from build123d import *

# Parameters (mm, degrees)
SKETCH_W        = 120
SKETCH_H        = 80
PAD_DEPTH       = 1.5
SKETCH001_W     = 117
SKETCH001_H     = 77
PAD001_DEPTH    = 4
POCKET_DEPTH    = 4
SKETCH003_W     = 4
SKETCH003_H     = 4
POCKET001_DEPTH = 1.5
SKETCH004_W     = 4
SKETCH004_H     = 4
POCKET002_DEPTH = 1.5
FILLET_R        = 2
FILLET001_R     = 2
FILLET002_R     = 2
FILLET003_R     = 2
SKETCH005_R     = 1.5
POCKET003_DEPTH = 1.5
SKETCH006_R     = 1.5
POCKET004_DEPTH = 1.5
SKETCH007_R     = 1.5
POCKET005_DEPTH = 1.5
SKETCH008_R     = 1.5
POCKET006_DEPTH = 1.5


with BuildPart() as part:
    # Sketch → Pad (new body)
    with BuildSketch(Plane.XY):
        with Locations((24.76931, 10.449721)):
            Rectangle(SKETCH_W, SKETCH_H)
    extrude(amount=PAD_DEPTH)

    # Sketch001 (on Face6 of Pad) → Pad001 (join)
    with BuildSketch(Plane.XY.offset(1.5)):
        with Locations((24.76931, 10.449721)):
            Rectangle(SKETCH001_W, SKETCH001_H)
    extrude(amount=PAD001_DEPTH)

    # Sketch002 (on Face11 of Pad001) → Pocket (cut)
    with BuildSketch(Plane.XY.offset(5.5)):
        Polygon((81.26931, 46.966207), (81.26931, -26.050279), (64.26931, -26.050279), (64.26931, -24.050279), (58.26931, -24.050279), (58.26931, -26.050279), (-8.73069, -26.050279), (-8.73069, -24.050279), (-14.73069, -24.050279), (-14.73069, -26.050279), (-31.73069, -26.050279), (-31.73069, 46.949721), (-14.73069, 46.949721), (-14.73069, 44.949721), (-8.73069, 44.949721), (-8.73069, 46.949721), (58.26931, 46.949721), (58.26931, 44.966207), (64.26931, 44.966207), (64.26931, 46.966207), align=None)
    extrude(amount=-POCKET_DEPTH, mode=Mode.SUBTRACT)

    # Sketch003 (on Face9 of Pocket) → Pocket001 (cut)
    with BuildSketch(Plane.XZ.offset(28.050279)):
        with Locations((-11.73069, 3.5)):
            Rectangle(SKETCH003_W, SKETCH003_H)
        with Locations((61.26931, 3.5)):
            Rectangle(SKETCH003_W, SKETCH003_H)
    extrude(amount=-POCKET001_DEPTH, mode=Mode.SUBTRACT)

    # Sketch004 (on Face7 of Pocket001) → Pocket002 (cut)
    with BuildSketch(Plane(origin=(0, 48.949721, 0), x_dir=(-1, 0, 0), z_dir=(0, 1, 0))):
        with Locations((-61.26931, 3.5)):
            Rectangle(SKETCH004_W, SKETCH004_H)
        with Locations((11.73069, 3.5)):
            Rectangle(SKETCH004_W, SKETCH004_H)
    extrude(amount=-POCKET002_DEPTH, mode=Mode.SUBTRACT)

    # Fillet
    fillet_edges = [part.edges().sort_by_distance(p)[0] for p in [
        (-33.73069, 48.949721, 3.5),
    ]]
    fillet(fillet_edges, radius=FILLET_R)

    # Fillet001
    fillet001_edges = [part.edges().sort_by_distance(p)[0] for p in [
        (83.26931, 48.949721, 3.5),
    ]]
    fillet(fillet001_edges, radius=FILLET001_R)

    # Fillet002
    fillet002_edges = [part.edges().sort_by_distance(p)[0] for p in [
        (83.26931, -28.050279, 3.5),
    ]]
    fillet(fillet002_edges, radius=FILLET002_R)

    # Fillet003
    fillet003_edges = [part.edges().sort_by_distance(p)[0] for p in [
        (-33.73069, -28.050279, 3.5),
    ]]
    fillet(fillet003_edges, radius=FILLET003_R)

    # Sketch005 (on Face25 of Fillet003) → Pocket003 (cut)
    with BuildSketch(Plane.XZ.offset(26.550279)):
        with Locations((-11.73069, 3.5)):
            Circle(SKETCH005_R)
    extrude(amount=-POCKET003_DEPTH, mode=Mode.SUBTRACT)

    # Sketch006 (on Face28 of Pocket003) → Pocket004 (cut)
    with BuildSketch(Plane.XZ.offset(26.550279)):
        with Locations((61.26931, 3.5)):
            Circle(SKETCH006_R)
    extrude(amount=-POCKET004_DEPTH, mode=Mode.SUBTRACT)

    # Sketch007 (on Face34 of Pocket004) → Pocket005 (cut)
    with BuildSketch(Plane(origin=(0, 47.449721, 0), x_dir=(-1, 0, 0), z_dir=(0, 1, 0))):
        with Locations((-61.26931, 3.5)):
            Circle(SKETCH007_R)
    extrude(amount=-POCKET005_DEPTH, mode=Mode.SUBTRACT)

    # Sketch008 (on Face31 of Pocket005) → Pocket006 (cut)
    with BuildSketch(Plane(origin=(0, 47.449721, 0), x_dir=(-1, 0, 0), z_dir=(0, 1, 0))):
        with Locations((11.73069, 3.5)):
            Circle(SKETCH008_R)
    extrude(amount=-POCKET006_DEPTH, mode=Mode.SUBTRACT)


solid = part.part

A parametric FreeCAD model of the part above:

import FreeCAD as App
import Part
import Sketcher
Q = App.Units.Quantity


def edges_at(feature, points):
    """Names of the edges that pass closest to the given points."""
    edges = feature.Shape.Edges
    near = lambda p: min(range(len(edges)), key=lambda i: edges[i].distToShape(Part.Vertex(*p))[0])
    return sorted({f"Edge{near(p) + 1}" for p in points})


def add_polygon(sketch, points):
    """Adds a closed chain of lines whose ends are joined by coincident constraints."""
    first, n = sketch.GeometryCount, len(points)
    for a, b in zip(points, points[1:] + points[:1]):
        sketch.addGeometry(Part.LineSegment(App.Vector(*a, 0), App.Vector(*b, 0)), False)
    for i in range(n):
        sketch.addConstraint(Sketcher.Constraint("Coincident", first + i, 2, first + (i + 1) % n, 1))

doc = App.newDocument("Part")
body = doc.addObject("PartDesign::Body", "Body")

# Sketch on XY plane
sketch1 = doc.addObject("Sketcher::SketchObject", "Sketch")
body.addObject(sketch1)
sketch1.AttachmentSupport = (doc.XY_Plane, [""])
sketch1.MapMode = "FlatFace"
add_polygon(sketch1, [(-35, 50), (-35, -30), (85, -30), (85, 50)])  # lines 0-3
sketch1.addConstraint([
    Sketcher.Constraint("Vertical", 0),
    Sketcher.Constraint("Horizontal", 1),
    Sketcher.Constraint("Vertical", 2),
    Sketcher.Constraint("Horizontal", 3),
    Sketcher.Constraint("DistanceX", 1, 1, 1, 2, Q("120 mm")),
    Sketcher.Constraint("DistanceY", 0, 2, 0, 1, Q("80 mm")),
    Sketcher.Constraint("DistanceX", 0, 2, -1, 1, Q("35.23069 mm")),
    Sketcher.Constraint("DistanceY", 0, 2, -1, 1, Q("29.550279 mm")),
])
pad1 = doc.addObject("PartDesign::Pad", "Pad")
body.addObject(pad1)
pad1.Profile = sketch1
pad1.Length = 1.5

# Sketch on XY plane
sketch2 = doc.addObject("Sketcher::SketchObject", "Sketch001")
body.addObject(sketch2)
sketch2.AttachmentSupport = (doc.XY_Plane, [""])
sketch2.MapMode = "FlatFace"
sketch2.AttachmentOffset = App.Placement(App.Vector(0, 0, 1.5), App.Rotation())
add_polygon(sketch2, [(-34, 49), (-34, -28), (83, -28), (83, 49)])  # lines 0-3
sketch2.addConstraint([
    Sketcher.Constraint("Vertical", 0),
    Sketcher.Constraint("Horizontal", 1),
    Sketcher.Constraint("Vertical", 2),
    Sketcher.Constraint("Horizontal", 3),
    Sketcher.Constraint("DistanceX", 1, 1, 1, 2, Q("117 mm")),
    Sketcher.Constraint("DistanceY", 0, 2, 0, 1, Q("77 mm")),
    Sketcher.Constraint("DistanceX", 0, 2, -1, 1, Q("33.73069 mm")),
    Sketcher.Constraint("DistanceY", 0, 2, -1, 1, Q("28.050279 mm")),
])
pad2 = doc.addObject("PartDesign::Pad", "Pad001")
body.addObject(pad2)
pad2.Profile = sketch2
pad2.Length = 4

# Sketch on XY plane
sketch3 = doc.addObject("Sketcher::SketchObject", "Sketch002")
body.addObject(sketch3)
sketch3.AttachmentSupport = (doc.XY_Plane, [""])
sketch3.MapMode = "FlatFace"
sketch3.AttachmentOffset = App.Placement(App.Vector(0, 0, 5.5), App.Rotation())
add_polygon(sketch3, [(81.3, -26.1), (81.3, 47), (64.3, 47), (64.3, 45), (58.3, 45), (58.3, 46.9), (-8.7, 46.9), (-8.7, 44.9), (-14.7, 44.9), (-14.7, 46.9), (-31.7, 46.9), (-31.7, -26.1), (-14.7, -26.1), (-14.7, -24.1), (-8.7, -24.1), (-8.7, -26.1), (58.3, -26.1), (58.3, -24.1), (64.3, -24.1), (64.3, -26.1)])  # lines 0-19
sketch3.addConstraint([
    Sketcher.Constraint("Vertical", 0),
    Sketcher.Constraint("Horizontal", 1),
    Sketcher.Constraint("Vertical", 2),
    Sketcher.Constraint("Horizontal", 3),
    Sketcher.Constraint("Vertical", 4),
    Sketcher.Constraint("Horizontal", 5),
    Sketcher.Constraint("Vertical", 6),
    Sketcher.Constraint("Horizontal", 7),
    Sketcher.Constraint("Vertical", 8),
    Sketcher.Constraint("Horizontal", 9),
    Sketcher.Constraint("Vertical", 10),
    Sketcher.Constraint("Horizontal", 11),
    Sketcher.Constraint("Vertical", 12),
    Sketcher.Constraint("Horizontal", 13),
    Sketcher.Constraint("Vertical", 14),
    Sketcher.Constraint("Horizontal", 15),
    Sketcher.Constraint("Vertical", 16),
    Sketcher.Constraint("Horizontal", 17),
    Sketcher.Constraint("Vertical", 18),
    Sketcher.Constraint("Horizontal", 19),
    Sketcher.Constraint("Horizontal", 5, 2, 8, 2),
    Sketcher.Constraint("Horizontal", 11, 2, 14, 2),
    Sketcher.Constraint("Horizontal", 13, 2, 16, 2),
    Sketcher.Constraint("Horizontal", 15, 2, 18, 2),
    Sketcher.Constraint("Vertical", 8, 2, 11, 2),
    Sketcher.Constraint("Vertical", 6, 2, 13, 2),
    Sketcher.Constraint("Vertical", 4, 2, 15, 2),
    Sketcher.Constraint("Vertical", 2, 2, 17, 2),
    Sketcher.Constraint("Equal", 3, 7),
    Sketcher.Constraint("Equal", 1, 9),
    Sketcher.Constraint("Equal", 2, 6),
    Sketcher.Constraint("Equal", 8, 12),
    Sketcher.Constraint("DistanceX", 1, 2, 1, 1, Q("17 mm")),
    Sketcher.Constraint("DistanceX", 3, 2, 3, 1, Q("6 mm")),
    Sketcher.Constraint("DistanceX", 5, 2, 5, 1, Q("67 mm")),
    Sketcher.Constraint("DistanceY", 2, 2, 2, 1, Q("2 mm")),
    Sketcher.Constraint("DistanceY", 10, 2, 10, 1, Q("73 mm")),
    Sketcher.Constraint("DistanceY", 0, 1, 0, 2, Q("73.016486 mm")),
    Sketcher.Constraint("DistanceX", -1, 1, 0, 2, Q("81.26931 mm")),
    Sketcher.Constraint("DistanceY", -1, 1, 4, 2, Q("46.949721 mm")),
])
pocket1 = doc.addObject("PartDesign::Pocket", "Pocket")
body.addObject(pocket1)
pocket1.Profile = sketch3
pocket1.Length = 4

# Sketch on XZ plane
sketch4 = doc.addObject("Sketcher::SketchObject", "Sketch003")
body.addObject(sketch4)
sketch4.AttachmentSupport = (doc.XZ_Plane, [""])
sketch4.MapMode = "FlatFace"
sketch4.AttachmentOffset = App.Placement(App.Vector(0, 0, 28.050279), App.Rotation())
add_polygon(sketch4, [(-13.7, 5.5), (-13.7, 1.5), (-9.7, 1.5), (-9.7, 5.5)])  # lines 0-3
add_polygon(sketch4, [(59.3, 5.5), (59.3, 1.5), (63.3, 1.5), (63.3, 5.5)])  # lines 4-7
sketch4.addConstraint([
    Sketcher.Constraint("Vertical", 0),
    Sketcher.Constraint("Horizontal", 1),
    Sketcher.Constraint("Vertical", 2),
    Sketcher.Constraint("Horizontal", 3),
    Sketcher.Constraint("Vertical", 4),
    Sketcher.Constraint("Horizontal", 5),
    Sketcher.Constraint("Vertical", 6),
    Sketcher.Constraint("Horizontal", 7),
    Sketcher.Constraint("Horizontal", 1, 2, 4, 2),
    Sketcher.Constraint("Horizontal", 3, 2, 6, 2),
    Sketcher.Constraint("Equal", 3, 5),
    Sketcher.Constraint("Equal", 7, 0),
    Sketcher.Constraint("DistanceX", 1, 1, 1, 2, Q("4 mm")),
    Sketcher.Constraint("DistanceX", 1, 2, 4, 2, Q("69 mm")),
    Sketcher.Constraint("DistanceY", -1, 1, 0, 2, Q("1.5 mm")),
    Sketcher.Constraint("DistanceX", 0, 2, -1, 1, Q("13.73069 mm")),
])
pocket2 = doc.addObject("PartDesign::Pocket", "Pocket001")
body.addObject(pocket2)
pocket2.Profile = sketch4
pocket2.Length = 1.5

# Sketch on XZ plane
sketch5 = doc.addObject("Sketcher::SketchObject", "Sketch004")
body.addObject(sketch5)
sketch5.AttachmentSupport = (doc.XZ_Plane, [""])
sketch5.MapMode = "FlatFace"
sketch5.AttachmentOffset = App.Placement(App.Vector(0, 0, -48.949721), App.Rotation())
add_polygon(sketch5, [(63.3, 5.5), (63.3, 1.5), (59.3, 1.5), (59.3, 5.5)])  # lines 0-3
add_polygon(sketch5, [(-9.7, 5.5), (-9.7, 1.5), (-13.7, 1.5), (-13.7, 5.5)])  # lines 4-7
sketch5.addConstraint([
    Sketcher.Constraint("Vertical", 0),
    Sketcher.Constraint("Horizontal", 1),
    Sketcher.Constraint("Vertical", 2),
    Sketcher.Constraint("Horizontal", 3),
    Sketcher.Constraint("Vertical", 4),
    Sketcher.Constraint("Horizontal", 5),
    Sketcher.Constraint("Vertical", 6),
    Sketcher.Constraint("Horizontal", 7),
    Sketcher.Constraint("Horizontal", 1, 2, 4, 2),
    Sketcher.Constraint("Horizontal", 3, 2, 6, 2),
    Sketcher.Constraint("Equal", 3, 5),
    Sketcher.Constraint("Equal", 7, 0),
    Sketcher.Constraint("DistanceX", 1, 2, 1, 1, Q("4 mm")),
    Sketcher.Constraint("DistanceX", 4, 2, 1, 2, Q("69 mm")),
    Sketcher.Constraint("DistanceY", -1, 1, 0, 2, Q("1.5 mm")),
    Sketcher.Constraint("DistanceX", -1, 1, 0, 2, Q("63.26931 mm")),
])
pocket3 = doc.addObject("PartDesign::Pocket", "Pocket002")
body.addObject(pocket3)
pocket3.Profile = sketch5
pocket3.Length = 1.5
pocket3.Reversed = True
doc.recompute()

fillet = doc.addObject("PartDesign::Fillet", "Fillet")
body.addObject(fillet)
fillet.Base = (pocket3, edges_at(pocket3, [(-33.731, 48.95, 3.5)]))
fillet.Radius = 2
doc.recompute()

fillet2 = doc.addObject("PartDesign::Fillet", "Fillet001")
body.addObject(fillet2)
fillet2.Base = (fillet, edges_at(fillet, [(83.269, 48.95, 3.5)]))
fillet2.Radius = 2
doc.recompute()

fillet3 = doc.addObject("PartDesign::Fillet", "Fillet002")
body.addObject(fillet3)
fillet3.Base = (fillet2, edges_at(fillet2, [(83.269, -28.05, 3.5)]))
fillet3.Radius = 2
doc.recompute()

fillet4 = doc.addObject("PartDesign::Fillet", "Fillet003")
body.addObject(fillet4)
fillet4.Base = (fillet3, edges_at(fillet3, [(-33.731, -28.05, 3.5)]))
fillet4.Radius = 2

# Sketch on XZ plane
sketch6 = doc.addObject("Sketcher::SketchObject", "Sketch005")
body.addObject(sketch6)
sketch6.AttachmentSupport = (doc.XZ_Plane, [""])
sketch6.MapMode = "FlatFace"
sketch6.AttachmentOffset = App.Placement(App.Vector(0, 0, 26.550279), App.Rotation())
sketch6.addGeometry(Part.Circle(App.Vector(-11.7, 3.5, 0), App.Vector(0, 0, 1), 1.5), False)
sketch6.addConstraint([
    Sketcher.Constraint("Diameter", 0, Q("3 mm")),
    Sketcher.Constraint("DistanceY", -1, 1, 0, 3, Q("3.5 mm")),
    Sketcher.Constraint("DistanceX", 0, 3, -1, 1, Q("11.73069 mm")),
])
pocket4 = doc.addObject("PartDesign::Pocket", "Pocket003")
body.addObject(pocket4)
pocket4.Profile = sketch6
pocket4.Length = 1.5

# Sketch on XZ plane
sketch7 = doc.addObject("Sketcher::SketchObject", "Sketch006")
body.addObject(sketch7)
sketch7.AttachmentSupport = (doc.XZ_Plane, [""])
sketch7.MapMode = "FlatFace"
sketch7.AttachmentOffset = App.Placement(App.Vector(0, 0, 26.550279), App.Rotation())
sketch7.addGeometry(Part.Circle(App.Vector(61.3, 3.5, 0), App.Vector(0, 0, 1), 1.5), False)
sketch7.addConstraint([
    Sketcher.Constraint("Diameter", 0, Q("3 mm")),
    Sketcher.Constraint("DistanceY", -1, 1, 0, 3, Q("3.5 mm")),
    Sketcher.Constraint("DistanceX", -1, 1, 0, 3, Q("61.26931 mm")),
])
pocket5 = doc.addObject("PartDesign::Pocket", "Pocket004")
body.addObject(pocket5)
pocket5.Profile = sketch7
pocket5.Length = 1.5

# Sketch on XZ plane
sketch8 = doc.addObject("Sketcher::SketchObject", "Sketch007")
body.addObject(sketch8)
sketch8.AttachmentSupport = (doc.XZ_Plane, [""])
sketch8.MapMode = "FlatFace"
sketch8.AttachmentOffset = App.Placement(App.Vector(0, 0, -47.449721), App.Rotation())
sketch8.addGeometry(Part.Circle(App.Vector(61.3, 3.5, 0), App.Vector(0, 0, 1), 1.5), False)
sketch8.addConstraint([
    Sketcher.Constraint("Diameter", 0, Q("3 mm")),
    Sketcher.Constraint("DistanceY", -1, 1, 0, 3, Q("3.5 mm")),
    Sketcher.Constraint("DistanceX", -1, 1, 0, 3, Q("61.26931 mm")),
])
pocket6 = doc.addObject("PartDesign::Pocket", "Pocket005")
body.addObject(pocket6)
pocket6.Profile = sketch8
pocket6.Length = 1.5
pocket6.Reversed = True

# Sketch on XZ plane
sketch9 = doc.addObject("Sketcher::SketchObject", "Sketch008")
body.addObject(sketch9)
sketch9.AttachmentSupport = (doc.XZ_Plane, [""])
sketch9.MapMode = "FlatFace"
sketch9.AttachmentOffset = App.Placement(App.Vector(0, 0, -47.449721), App.Rotation())
sketch9.addGeometry(Part.Circle(App.Vector(-11.7, 3.5, 0), App.Vector(0, 0, 1), 1.5), False)
sketch9.addConstraint([
    Sketcher.Constraint("Diameter", 0, Q("3 mm")),
    Sketcher.Constraint("DistanceY", -1, 1, 0, 3, Q("3.5 mm")),
    Sketcher.Constraint("DistanceX", 0, 3, -1, 1, Q("11.73069 mm")),
])
pocket7 = doc.addObject("PartDesign::Pocket", "Pocket006")
body.addObject(pocket7)
pocket7.Profile = sketch9
pocket7.Length = 1.5
pocket7.Reversed = True

doc.recompute()
